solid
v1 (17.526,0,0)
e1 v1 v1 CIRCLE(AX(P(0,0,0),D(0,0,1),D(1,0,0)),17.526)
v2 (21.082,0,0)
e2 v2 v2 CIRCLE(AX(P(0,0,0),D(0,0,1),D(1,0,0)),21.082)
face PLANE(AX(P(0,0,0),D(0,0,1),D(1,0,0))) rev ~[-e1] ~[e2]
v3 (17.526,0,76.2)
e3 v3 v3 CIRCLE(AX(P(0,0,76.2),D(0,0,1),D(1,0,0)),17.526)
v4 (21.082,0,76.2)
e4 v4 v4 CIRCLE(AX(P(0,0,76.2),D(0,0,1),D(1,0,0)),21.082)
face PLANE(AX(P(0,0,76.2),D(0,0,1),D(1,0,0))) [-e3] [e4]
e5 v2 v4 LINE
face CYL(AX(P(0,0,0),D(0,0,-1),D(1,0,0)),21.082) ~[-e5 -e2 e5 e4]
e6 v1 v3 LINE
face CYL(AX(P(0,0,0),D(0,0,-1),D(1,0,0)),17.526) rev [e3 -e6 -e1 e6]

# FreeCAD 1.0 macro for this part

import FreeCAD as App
import Part
import Sketcher
Q = App.Units.Quantity

doc = App.newDocument("Part")
params = doc.addObject("Spreadsheet::Sheet", "Params")
for row, (alias, value) in enumerate([
    ("sketch1_diameter", "1.66 in"),
    ("sketch1_diameter2", "1.38 in"),
    ("pad1_length", "3 in"),
], start=1):
    params.set(f"A{row}", alias)
    params.set(f"B{row}", "=" + value)
    params.setAlias(f"B{row}", alias)

body = doc.addObject("PartDesign::Body", "Body")

sketch1 = body.newObject("Sketcher::SketchObject", "Sketch")
sketch1.AttachmentSupport = (doc.getObject("XY_Plane"), [""])
sketch1.MapMode = "FlatFace"
sketch1.addGeometry([
    Part.Circle(App.Vector(0, 0, 0), App.Vector(0, 0, 1), 21),
    Part.Circle(App.Vector(0, 0, 0), App.Vector(0, 0, 1), 18),
], False)
sketch1.addConstraint([
    Sketcher.Constraint("Coincident", 0, 3, -1, 1),
    Sketcher.Constraint("Coincident", 1, 3, -1, 1),
    Sketcher.Constraint("Diameter", 0, Q("1.66 in")),
    Sketcher.Constraint("Diameter", 1, Q("1.38 in")),
])
sketch1.setExpression("Constraints[2]", "Params.sketch1_diameter")
sketch1.setExpression("Constraints[3]", "Params.sketch1_diameter2")
pad1 = body.newObject("PartDesign::Pad", "Pad")
pad1.Profile = sketch1
pad1.setExpression("Length", "Params.pad1_length")

doc.recompute()
